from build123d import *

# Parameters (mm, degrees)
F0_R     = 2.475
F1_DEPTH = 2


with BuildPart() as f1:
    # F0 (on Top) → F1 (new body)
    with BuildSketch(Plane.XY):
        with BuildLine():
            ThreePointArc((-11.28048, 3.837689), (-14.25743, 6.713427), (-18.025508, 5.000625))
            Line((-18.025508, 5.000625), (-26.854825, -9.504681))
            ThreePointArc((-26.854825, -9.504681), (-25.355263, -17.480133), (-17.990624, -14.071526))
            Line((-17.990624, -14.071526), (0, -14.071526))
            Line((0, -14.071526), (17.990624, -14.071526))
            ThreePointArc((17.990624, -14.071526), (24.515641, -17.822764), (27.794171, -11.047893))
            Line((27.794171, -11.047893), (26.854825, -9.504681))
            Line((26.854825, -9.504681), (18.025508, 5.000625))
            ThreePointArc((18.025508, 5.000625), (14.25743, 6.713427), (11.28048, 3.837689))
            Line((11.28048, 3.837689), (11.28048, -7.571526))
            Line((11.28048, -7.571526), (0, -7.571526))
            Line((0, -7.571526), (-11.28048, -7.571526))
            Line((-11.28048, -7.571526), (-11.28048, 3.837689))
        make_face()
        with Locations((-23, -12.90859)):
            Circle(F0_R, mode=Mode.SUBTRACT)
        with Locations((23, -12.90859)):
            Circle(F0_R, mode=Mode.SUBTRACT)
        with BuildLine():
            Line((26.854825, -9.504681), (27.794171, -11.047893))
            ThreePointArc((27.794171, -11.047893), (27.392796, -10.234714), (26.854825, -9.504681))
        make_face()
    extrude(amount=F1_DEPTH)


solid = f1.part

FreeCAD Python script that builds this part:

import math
import FreeCAD as App
import Part
import Sketcher

V = App.Vector
Q = App.Units.Quantity

doc = App.newDocument("Part")
body = doc.addObject("PartDesign::Body", "Body")

sketch1 = body.newObject("Sketcher::SketchObject", "Sketch")
sketch1.AttachmentSupport = (doc.getObject("XY_Plane"), [""])
sketch1.MapMode = "FlatFace"
sketch1.addGeometry(Part.ArcOfCircle(Part.Circle(V(-14.882583, 3.08754, 0), V(0, 0, 1), 3.679384), math.radians(11.763874), math.radians(148.67131)), False)
sketch1.addGeometry(Part.LineSegment(V(-18.025508, 5.000625, 0), V(-26.854825, -9.504681, 0)), False)
sketch1.addGeometry(Part.ArcOfCircle(Part.Circle(V(-23, -12.90859, 0), V(0, 0, 1), 5.142594), math.radians(138.554673), math.radians(346.930191)), False)
sketch1.addGeometry(Part.LineSegment(V(-17.990624, -14.071526, 0), V(17.990624, -14.071526, 0)), False)
sketch1.addGeometry(Part.ArcOfCircle(Part.Circle(V(23, -12.90859, 0), V(0, 0, 1), 5.142594), math.radians(-166.930197), math.radians(21.212061)), False)
sketch1.addGeometry(Part.ArcOfCircle(Part.Circle(V(22.999994, -12.908593, 0), V(0, 0, 1), 5.1426), math.radians(21.212058), math.radians(41.445304)), False)
sketch1.addGeometry(Part.LineSegment(V(26.854825, -9.504681, 0), V(18.025508, 5.000625, 0)), False)
sketch1.addGeometry(Part.ArcOfCircle(Part.Circle(V(14.882583, 3.08754, 0), V(0, 0, 1), 3.679384), math.radians(31.32869), math.radians(168.236126)), False)
sketch1.addGeometry(Part.LineSegment(V(11.28048, 3.837689, 0), V(11.28048, -7.571526, 0)), False)
sketch1.addGeometry(Part.LineSegment(V(11.28048, -7.571526, 0), V(-11.28048, -7.571526, 0)), False)
sketch1.addGeometry(Part.LineSegment(V(-11.28048, -7.571526, 0), V(-11.28048, 3.837689, 0)), False)
sketch1.addGeometry(Part.Circle(V(-23, -12.90859, 0), V(0, 0, 1), 2.475), False)
sketch1.addGeometry(Part.Circle(V(23, -12.90859, 0), V(0, 0, 1), 2.475), False)
sketch1.addConstraint(Sketcher.Constraint("Coincident", 0, 2, 1, 1))
sketch1.addConstraint(Sketcher.Constraint("Coincident", 1, 2, 2, 1))
sketch1.addConstraint(Sketcher.Constraint("Coincident", 2, 2, 3, 1))
sketch1.addConstraint(Sketcher.Constraint("Coincident", 3, 2, 4, 1))
sketch1.addConstraint(Sketcher.Constraint("Coincident", 4, 2, 5, 1))
sketch1.addConstraint(Sketcher.Constraint("Coincident", 5, 2, 6, 1))
sketch1.addConstraint(Sketcher.Constraint("Coincident", 6, 2, 7, 1))
sketch1.addConstraint(Sketcher.Constraint("Coincident", 7, 2, 8, 1))
sketch1.addConstraint(Sketcher.Constraint("Coincident", 8, 2, 9, 1))
sketch1.addConstraint(Sketcher.Constraint("Coincident", 9, 2, 10, 1))
sketch1.addConstraint(Sketcher.Constraint("Coincident", 10, 2, 0, 1))
sketch1.addConstraint(Sketcher.Constraint("Horizontal", 3))
sketch1.addConstraint(Sketcher.Constraint("Vertical", 8))
sketch1.addConstraint(Sketcher.Constraint("Horizontal", 9))
sketch1.addConstraint(Sketcher.Constraint("Vertical", 10))
sketch1.addConstraint(Sketcher.Constraint("Coincident", 5, 3, 4, 3))
sketch1.addConstraint(Sketcher.Constraint("Coincident", 11, 3, 2, 3))
sketch1.addConstraint(Sketcher.Constraint("Coincident", 12, 3, 4, 3))
sketch1.addConstraint(Sketcher.Constraint("Diameter", 11, Q("4.95 mm")))
sketch1.addConstraint(Sketcher.Constraint("Diameter", 12, Q("4.95 mm")))
sketch1.addConstraint(Sketcher.Constraint("DistanceX", 2, 3, -1, 1, Q("23 mm")))
sketch1.addConstraint(Sketcher.Constraint("DistanceX", -1, 1, 4, 3, Q("23 mm")))
sketch1.addConstraint(Sketcher.Constraint("Radius", 5, Q("5.1426 mm")))
sketch1.addConstraint(Sketcher.Constraint("DistanceY", 3, 2, 8, 2, Q("6.5 mm")))
sketch1.addConstraint(Sketcher.Constraint("Radius", 0, Q("3.679384 mm")))
sketch1.addConstraint(Sketcher.Constraint("Radius", 2, Q("5.142594 mm")))
sketch1.addConstraint(Sketcher.Constraint("Radius", 7, Q("3.679384 mm")))
sketch1.addConstraint(Sketcher.Constraint("DistanceX", 9, 2, 9, 1, Q("22.56096 mm")))
sketch1.addConstraint(Sketcher.Constraint("DistanceX", 1, 2, 2, 2, Q("8.864201 mm")))
sketch1.addConstraint(Sketcher.Constraint("DistanceY", 5, 3, 4, 2, Q("1.8607 mm")))
sketch1.addConstraint(Sketcher.Constraint("DistanceX", 3, 2, 5, 2, Q("8.864201 mm")))
sketch1.addConstraint(Sketcher.Constraint("DistanceX", 3, 1, 3, 2, Q("35.981248 mm")))
sketch1.addConstraint(Sketcher.Constraint("DistanceY", 8, 2, 8, 1, Q("11.409215 mm")))
sketch1.addConstraint(Sketcher.Constraint("DistanceY", 10, 1, 10, 2, Q("11.409215 mm")))
sketch1.addConstraint(Sketcher.Constraint("DistanceY", -1, 1, 0, 3, Q("3.08754 mm")))
sketch1.addConstraint(Sketcher.Constraint("DistanceY", 2, 3, -1, 1, Q("12.90859 mm")))
sketch1.addConstraint(Sketcher.Constraint("DistanceY", 4, 3, -1, 1, Q("12.90859 mm")))
sketch1.addConstraint(Sketcher.Constraint("DistanceY", -1, 1, 7, 3, Q("3.08754 mm")))
sketch1.addConstraint(Sketcher.Constraint("DistanceX", -1, 1, 7, 2, Q("11.28048 mm")))
sketch1.addConstraint(Sketcher.Constraint("DistanceX", 0, 2, 7, 3, Q("32.908091 mm")))
sketch1.addConstraint(Sketcher.Constraint("Distance", 6, Q("16.981188 mm")))
pad1 = body.newObject("PartDesign::Pad", "Pad")
pad1.Profile = sketch1
pad1.Length = 2

doc.recompute()
